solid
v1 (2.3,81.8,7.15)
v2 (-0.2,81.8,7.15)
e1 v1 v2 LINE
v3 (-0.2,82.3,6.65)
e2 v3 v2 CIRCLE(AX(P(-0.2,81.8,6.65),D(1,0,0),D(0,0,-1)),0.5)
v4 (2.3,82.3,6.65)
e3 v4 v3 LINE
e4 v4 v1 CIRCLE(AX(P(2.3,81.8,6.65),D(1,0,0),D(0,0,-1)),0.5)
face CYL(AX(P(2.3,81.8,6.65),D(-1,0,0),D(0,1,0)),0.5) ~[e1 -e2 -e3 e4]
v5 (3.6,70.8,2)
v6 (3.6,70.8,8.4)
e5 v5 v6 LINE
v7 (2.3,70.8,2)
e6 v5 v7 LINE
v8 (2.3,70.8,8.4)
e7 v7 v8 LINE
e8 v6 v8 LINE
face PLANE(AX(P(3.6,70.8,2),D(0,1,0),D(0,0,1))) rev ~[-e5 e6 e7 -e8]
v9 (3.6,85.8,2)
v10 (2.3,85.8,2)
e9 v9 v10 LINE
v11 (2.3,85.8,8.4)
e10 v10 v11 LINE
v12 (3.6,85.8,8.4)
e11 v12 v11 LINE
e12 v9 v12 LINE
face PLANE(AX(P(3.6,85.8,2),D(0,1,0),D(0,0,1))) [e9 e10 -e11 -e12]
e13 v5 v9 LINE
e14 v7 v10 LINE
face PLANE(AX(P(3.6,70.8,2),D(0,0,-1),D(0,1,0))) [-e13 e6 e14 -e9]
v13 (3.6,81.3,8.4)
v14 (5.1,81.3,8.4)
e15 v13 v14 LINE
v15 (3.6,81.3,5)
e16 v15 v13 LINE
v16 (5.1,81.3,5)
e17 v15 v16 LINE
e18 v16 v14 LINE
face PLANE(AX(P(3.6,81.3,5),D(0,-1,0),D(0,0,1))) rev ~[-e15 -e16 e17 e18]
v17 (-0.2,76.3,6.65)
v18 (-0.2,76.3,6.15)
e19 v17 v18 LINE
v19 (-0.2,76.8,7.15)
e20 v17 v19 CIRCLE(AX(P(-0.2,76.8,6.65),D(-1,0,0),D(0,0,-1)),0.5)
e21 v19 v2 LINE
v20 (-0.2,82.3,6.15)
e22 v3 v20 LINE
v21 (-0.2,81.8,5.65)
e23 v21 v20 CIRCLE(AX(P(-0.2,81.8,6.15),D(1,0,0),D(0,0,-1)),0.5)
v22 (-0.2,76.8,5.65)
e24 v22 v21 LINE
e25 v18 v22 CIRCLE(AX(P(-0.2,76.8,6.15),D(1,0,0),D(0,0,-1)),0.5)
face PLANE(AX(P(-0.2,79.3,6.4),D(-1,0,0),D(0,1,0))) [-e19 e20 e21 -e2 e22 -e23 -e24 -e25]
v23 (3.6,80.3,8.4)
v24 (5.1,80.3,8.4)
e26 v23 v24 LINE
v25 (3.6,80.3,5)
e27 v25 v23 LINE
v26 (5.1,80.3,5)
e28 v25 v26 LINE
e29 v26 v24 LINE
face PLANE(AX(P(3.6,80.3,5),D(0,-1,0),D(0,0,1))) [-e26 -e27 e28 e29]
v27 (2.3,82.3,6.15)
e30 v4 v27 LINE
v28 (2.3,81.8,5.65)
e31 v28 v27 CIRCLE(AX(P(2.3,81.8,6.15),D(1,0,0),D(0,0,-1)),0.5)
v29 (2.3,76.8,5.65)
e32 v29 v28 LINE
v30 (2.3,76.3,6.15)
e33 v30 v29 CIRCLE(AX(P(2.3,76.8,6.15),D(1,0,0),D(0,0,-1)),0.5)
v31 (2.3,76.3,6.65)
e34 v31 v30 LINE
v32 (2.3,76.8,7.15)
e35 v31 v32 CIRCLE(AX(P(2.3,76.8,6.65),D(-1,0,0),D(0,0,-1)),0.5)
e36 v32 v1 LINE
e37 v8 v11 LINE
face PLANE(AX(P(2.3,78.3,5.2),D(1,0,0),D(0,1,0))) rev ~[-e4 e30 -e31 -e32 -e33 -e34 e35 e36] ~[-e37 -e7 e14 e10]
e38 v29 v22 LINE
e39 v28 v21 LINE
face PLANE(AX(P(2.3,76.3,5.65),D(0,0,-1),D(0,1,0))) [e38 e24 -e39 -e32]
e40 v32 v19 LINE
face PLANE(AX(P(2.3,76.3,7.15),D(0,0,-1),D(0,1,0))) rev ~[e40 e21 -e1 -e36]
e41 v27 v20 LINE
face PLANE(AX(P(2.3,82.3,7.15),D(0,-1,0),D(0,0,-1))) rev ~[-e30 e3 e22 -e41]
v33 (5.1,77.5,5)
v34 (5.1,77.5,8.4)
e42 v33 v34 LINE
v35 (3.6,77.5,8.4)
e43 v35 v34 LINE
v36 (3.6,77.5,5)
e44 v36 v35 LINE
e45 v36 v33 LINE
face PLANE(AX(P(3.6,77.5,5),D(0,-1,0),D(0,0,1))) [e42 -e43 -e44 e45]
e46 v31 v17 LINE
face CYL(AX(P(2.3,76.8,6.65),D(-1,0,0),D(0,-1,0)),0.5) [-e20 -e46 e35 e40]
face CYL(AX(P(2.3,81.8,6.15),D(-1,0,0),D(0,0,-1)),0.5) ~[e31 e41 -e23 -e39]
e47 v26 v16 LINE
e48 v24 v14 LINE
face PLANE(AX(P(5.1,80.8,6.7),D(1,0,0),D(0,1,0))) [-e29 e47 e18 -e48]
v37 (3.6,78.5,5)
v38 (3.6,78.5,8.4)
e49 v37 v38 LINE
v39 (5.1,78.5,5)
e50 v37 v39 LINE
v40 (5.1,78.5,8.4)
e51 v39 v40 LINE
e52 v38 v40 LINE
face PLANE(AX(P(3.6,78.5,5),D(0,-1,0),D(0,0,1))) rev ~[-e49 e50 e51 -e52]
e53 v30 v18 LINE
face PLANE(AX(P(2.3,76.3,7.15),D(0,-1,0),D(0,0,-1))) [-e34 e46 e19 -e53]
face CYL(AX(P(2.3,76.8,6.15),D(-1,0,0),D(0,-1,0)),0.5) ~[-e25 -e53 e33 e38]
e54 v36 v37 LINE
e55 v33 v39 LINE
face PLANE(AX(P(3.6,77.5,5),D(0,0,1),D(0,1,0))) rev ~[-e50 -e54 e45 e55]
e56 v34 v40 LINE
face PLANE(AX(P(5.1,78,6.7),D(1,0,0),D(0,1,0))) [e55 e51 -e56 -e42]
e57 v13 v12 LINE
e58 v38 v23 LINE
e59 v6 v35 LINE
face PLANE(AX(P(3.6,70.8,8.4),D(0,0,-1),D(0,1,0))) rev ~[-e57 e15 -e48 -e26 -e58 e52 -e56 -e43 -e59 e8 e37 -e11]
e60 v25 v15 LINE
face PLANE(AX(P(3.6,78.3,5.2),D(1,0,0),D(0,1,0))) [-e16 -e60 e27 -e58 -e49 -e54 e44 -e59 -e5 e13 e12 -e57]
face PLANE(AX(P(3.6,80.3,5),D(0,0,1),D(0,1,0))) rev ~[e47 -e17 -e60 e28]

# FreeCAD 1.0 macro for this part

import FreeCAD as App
import Part
import Sketcher


def edges_at(feature, points):
    """Names of the edges that pass closest to the given points."""
    edges = feature.Shape.Edges
    near = lambda p: min(range(len(edges)), key=lambda i: edges[i].distToShape(Part.Vertex(*p))[0])
    return sorted({f"Edge{near(p) + 1}" for p in points})

doc = App.newDocument("Part")
params = doc.addObject("Spreadsheet::Sheet", "Params")
for row, (alias, value) in enumerate([
    ("sketch1_width", "15 mm"),
    ("sketch1_height", "6.4 mm"),
    ("pad1_length", "1.3 mm"),
    ("sketch2_width", "6 mm"),
    ("sketch2_height", "1.5 mm"),
    ("pad2_length", "2.5 mm"),
    ("sketch3_width", "1 mm"),
    ("sketch3_height", "3.4 mm"),
    ("pad3_length", "1.5 mm"),
    ("fillet_radius", "0.5 mm"),
], start=1):
    params.set(f"A{row}", alias)
    params.set(f"B{row}", "=" + value)
    params.setAlias(f"B{row}", alias)

body = doc.addObject("PartDesign::Body", "Body")

sketch1 = doc.addObject("Sketcher::SketchObject", "Sketch")
body.addObject(sketch1)
sketch1.AttachmentSupport = (doc.YZ_Plane, [""])
sketch1.MapMode = "FlatFace"
sketch1.AttachmentOffset = App.Placement(App.Vector(0, 0, 3.6), App.Rotation())
sketch1.addGeometry([
    Part.LineSegment(App.Vector(70.8, 8.4, 0), App.Vector(70.8, 2, 0)),
    Part.LineSegment(App.Vector(70.8, 2, 0), App.Vector(85.8, 2, 0)),
    Part.LineSegment(App.Vector(85.8, 2, 0), App.Vector(85.8, 8.4, 0)),
    Part.LineSegment(App.Vector(85.8, 8.4, 0), App.Vector(70.8, 8.4, 0)),
], False)
sketch1.addConstraint([
    Sketcher.Constraint("Coincident", 0, 2, 1, 1),
    Sketcher.Constraint("Coincident", 1, 2, 2, 1),
    Sketcher.Constraint("Coincident", 2, 2, 3, 1),
    Sketcher.Constraint("Coincident", 3, 2, 0, 1),
    Sketcher.Constraint("Vertical", 0),
    Sketcher.Constraint("Horizontal", 1),
    Sketcher.Constraint("Vertical", 2),
    Sketcher.Constraint("Horizontal", 3),
    Sketcher.Constraint("DistanceX", 1, 1, 1, 2, 15.0),
    Sketcher.Constraint("DistanceY", 0, 2, 0, 1, 6.4),
    Sketcher.Constraint("DistanceY", -1, 1, 0, 2, 2.0),
    Sketcher.Constraint("DistanceX", -1, 1, 0, 2, 70.8),
])
sketch1.setExpression("Constraints[8]", "Params.sketch1_width")
sketch1.setExpression("Constraints[9]", "Params.sketch1_height")
pad1 = doc.addObject("PartDesign::Pad", "Pad")
body.addObject(pad1)
pad1.Profile = sketch1
pad1.setExpression("Length", "Params.pad1_length")
pad1.Reversed = True

sketch2 = doc.addObject("Sketcher::SketchObject", "Sketch001")
body.addObject(sketch2)
sketch2.AttachmentSupport = (doc.YZ_Plane, [""])
sketch2.MapMode = "FlatFace"
sketch2.AttachmentOffset = App.Placement(App.Vector(0, 0, 2.3), App.Rotation())
sketch2.addGeometry([
    Part.LineSegment(App.Vector(76.3, 5.65, 0), App.Vector(76.3, 7.15, 0)),
    Part.LineSegment(App.Vector(76.3, 7.15, 0), App.Vector(82.3, 7.15, 0)),
    Part.LineSegment(App.Vector(82.3, 7.15, 0), App.Vector(82.3, 5.65, 0)),
    Part.LineSegment(App.Vector(82.3, 5.65, 0), App.Vector(76.3, 5.65, 0)),
], False)
sketch2.addConstraint([
    Sketcher.Constraint("Coincident", 0, 2, 1, 1),
    Sketcher.Constraint("Coincident", 1, 2, 2, 1),
    Sketcher.Constraint("Coincident", 2, 2, 3, 1),
    Sketcher.Constraint("Coincident", 3, 2, 0, 1),
    Sketcher.Constraint("Vertical", 0),
    Sketcher.Constraint("Horizontal", 1),
    Sketcher.Constraint("Vertical", 2),
    Sketcher.Constraint("Horizontal", 3),
    Sketcher.Constraint("DistanceX", 1, 1, 1, 2, 6.0),
    Sketcher.Constraint("DistanceY", 0, 1, 0, 2, 1.5),
    Sketcher.Constraint("DistanceX", -1, 1, 0, 2, 76.3),
    Sketcher.Constraint("DistanceY", -1, 1, 0, 2, 7.15),
])
sketch2.setExpression("Constraints[8]", "Params.sketch2_width")
sketch2.setExpression("Constraints[9]", "Params.sketch2_height")
pad2 = doc.addObject("PartDesign::Pad", "Pad001")
body.addObject(pad2)
pad2.Profile = sketch2
pad2.setExpression("Length", "Params.pad2_length")
pad2.Reversed = True

sketch3 = doc.addObject("Sketcher::SketchObject", "Sketch002")
body.addObject(sketch3)
sketch3.AttachmentSupport = (doc.YZ_Plane, [""])
sketch3.MapMode = "FlatFace"
sketch3.AttachmentOffset = App.Placement(App.Vector(0, 0, 3.6), App.Rotation())
sketch3.addGeometry([
    Part.LineSegment(App.Vector(77.5, 8.4, 0), App.Vector(77.5, 5, 0)),
    Part.LineSegment(App.Vector(77.5, 5, 0), App.Vector(78.5, 5, 0)),
    Part.LineSegment(App.Vector(78.5, 5, 0), App.Vector(78.5, 8.4, 0)),
    Part.LineSegment(App.Vector(78.5, 8.4, 0), App.Vector(77.5, 8.4, 0)),
    Part.LineSegment(App.Vector(80.3, 8.4, 0), App.Vector(80.3, 5, 0)),
    Part.LineSegment(App.Vector(80.3, 5, 0), App.Vector(81.3, 5, 0)),
    Part.LineSegment(App.Vector(81.3, 5, 0), App.Vector(81.3, 8.4, 0)),
    Part.LineSegment(App.Vector(81.3, 8.4, 0), App.Vector(80.3, 8.4, 0)),
], False)
sketch3.addConstraint([
    Sketcher.Constraint("Coincident", 0, 2, 1, 1),
    Sketcher.Constraint("Coincident", 1, 2, 2, 1),
    Sketcher.Constraint("Coincident", 2, 2, 3, 1),
    Sketcher.Constraint("Coincident", 3, 2, 0, 1),
    Sketcher.Constraint("Coincident", 4, 2, 5, 1),
    Sketcher.Constraint("Coincident", 5, 2, 6, 1),
    Sketcher.Constraint("Coincident", 6, 2, 7, 1),
    Sketcher.Constraint("Coincident", 7, 2, 4, 1),
    Sketcher.Constraint("Vertical", 0),
    Sketcher.Constraint("Horizontal", 1),
    Sketcher.Constraint("Vertical", 2),
    Sketcher.Constraint("Horizontal", 3),
    Sketcher.Constraint("Vertical", 4),
    Sketcher.Constraint("Horizontal", 5),
    Sketcher.Constraint("Vertical", 6),
    Sketcher.Constraint("Horizontal", 7),
    Sketcher.Constraint("Horizontal", 1, 2, 4, 2),
    Sketcher.Constraint("Horizontal", 3, 2, 6, 2),
    Sketcher.Constraint("Equal", 3, 5),
    Sketcher.Constraint("DistanceX", 1, 1, 1, 2, 1.0),
    Sketcher.Constraint("DistanceY", 0, 2, 0, 1, 3.4),
    Sketcher.Constraint("DistanceY", -1, 1, 0, 2, 5.0),
    Sketcher.Constraint("DistanceX", -1, 1, 0, 2, 77.5),
    Sketcher.Constraint("DistanceX", -1, 1, 4, 2, 80.3),
])
sketch3.setExpression("Constraints[19]", "Params.sketch3_width")
sketch3.setExpression("Constraints[20]", "Params.sketch3_height")
pad3 = doc.addObject("PartDesign::Pad", "Pad002")
body.addObject(pad3)
pad3.Profile = sketch3
pad3.setExpression("Length", "Params.pad3_length")
doc.recompute()

fillet = doc.addObject("PartDesign::Fillet", "Fillet")
body.addObject(fillet)
fillet.Base = (pad3, edges_at(pad3, [
    (1.05, 76.3, 7.15),
    (1.05, 76.3, 5.65),
    (1.05, 82.3, 5.65),
    (1.05, 82.3, 7.15),
]))
fillet.setExpression("Radius", "Params.fillet_radius")

doc.recompute()
